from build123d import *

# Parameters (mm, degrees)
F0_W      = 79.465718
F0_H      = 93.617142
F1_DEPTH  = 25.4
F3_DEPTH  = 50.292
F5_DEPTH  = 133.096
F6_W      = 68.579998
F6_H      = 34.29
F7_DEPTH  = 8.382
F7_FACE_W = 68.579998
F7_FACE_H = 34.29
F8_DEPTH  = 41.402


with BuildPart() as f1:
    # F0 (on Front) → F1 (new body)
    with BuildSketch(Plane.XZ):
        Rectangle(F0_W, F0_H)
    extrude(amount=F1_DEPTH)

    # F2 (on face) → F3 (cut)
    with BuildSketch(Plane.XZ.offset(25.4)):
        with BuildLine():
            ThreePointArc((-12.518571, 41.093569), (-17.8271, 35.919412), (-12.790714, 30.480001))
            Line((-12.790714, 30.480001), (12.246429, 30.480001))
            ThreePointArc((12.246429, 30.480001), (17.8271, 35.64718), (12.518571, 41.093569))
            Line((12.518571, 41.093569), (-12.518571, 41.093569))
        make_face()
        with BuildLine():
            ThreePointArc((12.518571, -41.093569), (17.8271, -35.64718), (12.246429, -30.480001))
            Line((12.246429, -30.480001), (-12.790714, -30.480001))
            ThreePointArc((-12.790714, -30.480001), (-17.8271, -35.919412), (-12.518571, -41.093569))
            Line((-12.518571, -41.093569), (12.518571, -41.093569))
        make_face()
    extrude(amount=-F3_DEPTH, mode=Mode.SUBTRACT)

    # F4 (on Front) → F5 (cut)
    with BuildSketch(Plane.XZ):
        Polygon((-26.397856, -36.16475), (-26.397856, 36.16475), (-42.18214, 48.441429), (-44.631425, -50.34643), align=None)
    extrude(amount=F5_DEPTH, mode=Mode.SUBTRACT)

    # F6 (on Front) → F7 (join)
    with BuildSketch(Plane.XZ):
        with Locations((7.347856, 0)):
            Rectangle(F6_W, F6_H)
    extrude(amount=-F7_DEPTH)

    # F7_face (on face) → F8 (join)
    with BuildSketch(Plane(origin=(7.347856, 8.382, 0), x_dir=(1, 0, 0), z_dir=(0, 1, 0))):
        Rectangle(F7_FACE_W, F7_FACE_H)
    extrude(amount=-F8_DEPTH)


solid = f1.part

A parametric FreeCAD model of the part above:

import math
import FreeCAD as App
import Part
import Sketcher
Q = App.Units.Quantity


def add_polygon(sketch, points):
    """Adds a closed chain of lines whose ends are joined by coincident constraints."""
    first, n = sketch.GeometryCount, len(points)
    for a, b in zip(points, points[1:] + points[:1]):
        sketch.addGeometry(Part.LineSegment(App.Vector(*a, 0), App.Vector(*b, 0)), False)
    for i in range(n):
        sketch.addConstraint(Sketcher.Constraint("Coincident", first + i, 2, first + (i + 1) % n, 1))

doc = App.newDocument("Part")
body = doc.addObject("PartDesign::Body", "Body")

# Sketch on XZ plane
sketch1 = doc.addObject("Sketcher::SketchObject", "Sketch")
body.addObject(sketch1)
sketch1.AttachmentSupport = (doc.XZ_Plane, [""])
sketch1.MapMode = "FlatFace"
add_polygon(sketch1, [(-39.732859, 46.808571), (-39.732859, -46.808571), (39.732859, -46.808571), (39.732859, 46.808571)])  # lines 0-3
sketch1.addConstraint(Sketcher.Constraint("Vertical", 0))
sketch1.addConstraint(Sketcher.Constraint("Horizontal", 1))
sketch1.addConstraint(Sketcher.Constraint("Vertical", 2))
sketch1.addConstraint(Sketcher.Constraint("Horizontal", 3))
sketch1.addConstraint(Sketcher.Constraint("Symmetric", 0, 2, 2, 2, -1, 1))
sketch1.addConstraint(Sketcher.Constraint("DistanceY", 0, 2, 0, 1, 93.617142))
sketch1.addConstraint(Sketcher.Constraint("DistanceX", 1, 1, 1, 2, 79.465718))
pad1 = doc.addObject("PartDesign::Pad", "Pad")
body.addObject(pad1)
pad1.Profile = sketch1
pad1.Length = Q("1 in")

# Sketch on XZ plane
sketch2 = doc.addObject("Sketcher::SketchObject", "Sketch001")
body.addObject(sketch2)
sketch2.AttachmentSupport = (doc.XZ_Plane, [""])
sketch2.MapMode = "FlatFace"
sketch2.AttachmentOffset = App.Placement(App.Vector(0, 0, 1 * 25.4), App.Rotation())
sketch2.addGeometry(Part.ArcOfCircle(Part.Circle(App.Vector(-12.518572, 35.783296, 0), App.Vector(0, 0, 1), 5.310273), math.radians(89.999991), math.radians(267.062405)), False)
sketch2.addGeometry(Part.LineSegment(App.Vector(-12.790714, 30.480001, 0), App.Vector(12.246429, 30.480001, 0)), False)
sketch2.addGeometry(Part.ArcOfCircle(Part.Circle(App.Vector(12.518572, 35.783296, 0), App.Vector(0, 0, 1), 5.310273), math.radians(-92.937602), math.radians(90.000008)), False)
sketch2.addGeometry(Part.LineSegment(App.Vector(12.518571, 41.093569, 0), App.Vector(-12.518571, 41.093569, 0)), False)
sketch2.addGeometry(Part.ArcOfCircle(Part.Circle(App.Vector(12.518572, -35.783296, 0), App.Vector(0, 0, 1), 5.310273), math.radians(-90.000008), math.radians(92.937602)), False)
sketch2.addGeometry(Part.LineSegment(App.Vector(12.246429, -30.480001, 0), App.Vector(-12.790714, -30.480001, 0)), False)
sketch2.addGeometry(Part.ArcOfCircle(Part.Circle(App.Vector(-12.518572, -35.783296, 0), App.Vector(0, 0, 1), 5.310273), math.radians(92.937595), math.radians(270.000009)), False)
sketch2.addGeometry(Part.LineSegment(App.Vector(-12.518571, -41.093569, 0), App.Vector(12.518571, -41.093569, 0)), False)
sketch2.addConstraint(Sketcher.Constraint("Coincident", 0, 2, 1, 1))
sketch2.addConstraint(Sketcher.Constraint("Coincident", 1, 2, 2, 1))
sketch2.addConstraint(Sketcher.Constraint("Tangent", 2, 2, 3, 1))
sketch2.addConstraint(Sketcher.Constraint("Tangent", 3, 2, 0, 1))
sketch2.addConstraint(Sketcher.Constraint("Coincident", 4, 2, 5, 1))
sketch2.addConstraint(Sketcher.Constraint("Coincident", 5, 2, 6, 1))
sketch2.addConstraint(Sketcher.Constraint("Tangent", 6, 2, 7, 1))
sketch2.addConstraint(Sketcher.Constraint("Tangent", 7, 2, 4, 1))
sketch2.addConstraint(Sketcher.Constraint("Horizontal", 1))
sketch2.addConstraint(Sketcher.Constraint("Horizontal", 3))
sketch2.addConstraint(Sketcher.Constraint("Horizontal", 5))
sketch2.addConstraint(Sketcher.Constraint("Horizontal", 7))
sketch2.addConstraint(Sketcher.Constraint("Equal", 0, 2))
sketch2.addConstraint(Sketcher.Constraint("Equal", 2, 4))
sketch2.addConstraint(Sketcher.Constraint("Equal", 4, 6))
sketch2.addConstraint(Sketcher.Constraint("Symmetric", 0, 3, 4, 3, -1, 1))
sketch2.addConstraint(Sketcher.Constraint("Symmetric", 1, 2, 4, 2, -1))
sketch2.addConstraint(Sketcher.Constraint("Vertical", 0, 3, 6, 3))
sketch2.addConstraint(Sketcher.Constraint("DistanceY", -1, 1, 0, 2, Q("1.2 in")))
sketch2.addConstraint(Sketcher.Constraint("DistanceX", 0, 3, 1, 2, Q("0.975 in")))
sketch2.addConstraint(Sketcher.Constraint("Radius", 0, 5.310273))
sketch2.addConstraint(Sketcher.Constraint("DistanceX", 3, 2, 3, 1, 25.037142))
pocket1 = doc.addObject("PartDesign::Pocket", "Pocket")
body.addObject(pocket1)
pocket1.Profile = sketch2
pocket1.Length = Q("1.98 in")

# Sketch on XZ plane
sketch3 = doc.addObject("Sketcher::SketchObject", "Sketch002")
body.addObject(sketch3)
sketch3.AttachmentSupport = (doc.XZ_Plane, [""])
sketch3.MapMode = "FlatFace"
add_polygon(sketch3, [(-26.397856, -36.16475), (-26.397856, 36.16475), (-42.18214, 48.441429), (-44.631425, -50.34643)])  # lines 0-3
sketch3.addConstraint(Sketcher.Constraint("Vertical", 0))
sketch3.addConstraint(Sketcher.Constraint("DistanceY", 0, 1, 0, 2, 72.3295))
sketch3.addConstraint(Sketcher.Constraint("Distance", 1, 19.996511))
sketch3.addConstraint(Sketcher.Constraint("DistanceY", -1, 1, 0, 2, 36.16475))
sketch3.addConstraint(Sketcher.Constraint("DistanceX", 1, 2, -1, 1, 42.18214))
sketch3.addConstraint(Sketcher.Constraint("DistanceY", -1, 1, 1, 2, 48.441429))
sketch3.addConstraint(Sketcher.Constraint("DistanceY", 2, 2, -1, 1, 50.34643))
sketch3.addConstraint(Sketcher.Constraint("DistanceX", 2, 2, 0, 2, 18.233569))
pocket2 = doc.addObject("PartDesign::Pocket", "Pocket001")
body.addObject(pocket2)
pocket2.Profile = sketch3
pocket2.Length = Q("5.24 in")
pocket2.Reversed = True

# Sketch on XZ plane
sketch4 = doc.addObject("Sketcher::SketchObject", "Sketch003")
body.addObject(sketch4)
sketch4.AttachmentSupport = (doc.XZ_Plane, [""])
sketch4.MapMode = "FlatFace"
add_polygon(sketch4, [(-26.942143, 17.145), (-26.942143, -17.145), (41.637855, -17.145), (41.637855, 17.145)])  # lines 0-3
sketch4.addConstraint(Sketcher.Constraint("Vertical", 0))
sketch4.addConstraint(Sketcher.Constraint("Horizontal", 1))
sketch4.addConstraint(Sketcher.Constraint("Vertical", 2))
sketch4.addConstraint(Sketcher.Constraint("Horizontal", 3))
sketch4.addConstraint(Sketcher.Constraint("DistanceX", 1, 1, 1, 2, Q("2.6999999 in")))
sketch4.addConstraint(Sketcher.Constraint("DistanceY", 0, 2, 0, 1, Q("1.35 in")))
sketch4.addConstraint(Sketcher.Constraint("DistanceY", 0, 2, -1, 1, Q("0.675 in")))
sketch4.addConstraint(Sketcher.Constraint("DistanceX", 0, 2, -1, 1, 26.942143))
pad2 = doc.addObject("PartDesign::Pad", "Pad001")
body.addObject(pad2)
pad2.Profile = sketch4
pad2.Length = Q("0.33 in")
pad2.Reversed = True

# Sketch on XZ plane
sketch5 = doc.addObject("Sketcher::SketchObject", "Sketch004")
body.addObject(sketch5)
sketch5.AttachmentSupport = (doc.XZ_Plane, [""])
sketch5.MapMode = "FlatFace"
sketch5.AttachmentOffset = App.Placement(App.Vector(0, 0, -0.33 * 25.4), App.Rotation())
add_polygon(sketch5, [(-26.942143, -17.145), (-26.942143, 17.145), (41.637855, 17.145), (41.637855, -17.145)])  # lines 0-3
sketch5.addConstraint(Sketcher.Constraint("Vertical", 0))
sketch5.addConstraint(Sketcher.Constraint("Horizontal", 1))
sketch5.addConstraint(Sketcher.Constraint("Vertical", 2))
sketch5.addConstraint(Sketcher.Constraint("Horizontal", 3))
sketch5.addConstraint(Sketcher.Constraint("DistanceX", 1, 1, 1, 2, Q("2.6999999 in")))
sketch5.addConstraint(Sketcher.Constraint("DistanceY", 0, 1, 0, 2, Q("1.35 in")))
sketch5.addConstraint(Sketcher.Constraint("DistanceY", -1, 1, 0, 2, Q("0.675 in")))
sketch5.addConstraint(Sketcher.Constraint("DistanceX", 0, 2, -1, 1, 26.942143))
pad3 = doc.addObject("PartDesign::Pad", "Pad002")
body.addObject(pad3)
pad3.Profile = sketch5
pad3.Length = Q("1.63 in")

doc.recompute()
